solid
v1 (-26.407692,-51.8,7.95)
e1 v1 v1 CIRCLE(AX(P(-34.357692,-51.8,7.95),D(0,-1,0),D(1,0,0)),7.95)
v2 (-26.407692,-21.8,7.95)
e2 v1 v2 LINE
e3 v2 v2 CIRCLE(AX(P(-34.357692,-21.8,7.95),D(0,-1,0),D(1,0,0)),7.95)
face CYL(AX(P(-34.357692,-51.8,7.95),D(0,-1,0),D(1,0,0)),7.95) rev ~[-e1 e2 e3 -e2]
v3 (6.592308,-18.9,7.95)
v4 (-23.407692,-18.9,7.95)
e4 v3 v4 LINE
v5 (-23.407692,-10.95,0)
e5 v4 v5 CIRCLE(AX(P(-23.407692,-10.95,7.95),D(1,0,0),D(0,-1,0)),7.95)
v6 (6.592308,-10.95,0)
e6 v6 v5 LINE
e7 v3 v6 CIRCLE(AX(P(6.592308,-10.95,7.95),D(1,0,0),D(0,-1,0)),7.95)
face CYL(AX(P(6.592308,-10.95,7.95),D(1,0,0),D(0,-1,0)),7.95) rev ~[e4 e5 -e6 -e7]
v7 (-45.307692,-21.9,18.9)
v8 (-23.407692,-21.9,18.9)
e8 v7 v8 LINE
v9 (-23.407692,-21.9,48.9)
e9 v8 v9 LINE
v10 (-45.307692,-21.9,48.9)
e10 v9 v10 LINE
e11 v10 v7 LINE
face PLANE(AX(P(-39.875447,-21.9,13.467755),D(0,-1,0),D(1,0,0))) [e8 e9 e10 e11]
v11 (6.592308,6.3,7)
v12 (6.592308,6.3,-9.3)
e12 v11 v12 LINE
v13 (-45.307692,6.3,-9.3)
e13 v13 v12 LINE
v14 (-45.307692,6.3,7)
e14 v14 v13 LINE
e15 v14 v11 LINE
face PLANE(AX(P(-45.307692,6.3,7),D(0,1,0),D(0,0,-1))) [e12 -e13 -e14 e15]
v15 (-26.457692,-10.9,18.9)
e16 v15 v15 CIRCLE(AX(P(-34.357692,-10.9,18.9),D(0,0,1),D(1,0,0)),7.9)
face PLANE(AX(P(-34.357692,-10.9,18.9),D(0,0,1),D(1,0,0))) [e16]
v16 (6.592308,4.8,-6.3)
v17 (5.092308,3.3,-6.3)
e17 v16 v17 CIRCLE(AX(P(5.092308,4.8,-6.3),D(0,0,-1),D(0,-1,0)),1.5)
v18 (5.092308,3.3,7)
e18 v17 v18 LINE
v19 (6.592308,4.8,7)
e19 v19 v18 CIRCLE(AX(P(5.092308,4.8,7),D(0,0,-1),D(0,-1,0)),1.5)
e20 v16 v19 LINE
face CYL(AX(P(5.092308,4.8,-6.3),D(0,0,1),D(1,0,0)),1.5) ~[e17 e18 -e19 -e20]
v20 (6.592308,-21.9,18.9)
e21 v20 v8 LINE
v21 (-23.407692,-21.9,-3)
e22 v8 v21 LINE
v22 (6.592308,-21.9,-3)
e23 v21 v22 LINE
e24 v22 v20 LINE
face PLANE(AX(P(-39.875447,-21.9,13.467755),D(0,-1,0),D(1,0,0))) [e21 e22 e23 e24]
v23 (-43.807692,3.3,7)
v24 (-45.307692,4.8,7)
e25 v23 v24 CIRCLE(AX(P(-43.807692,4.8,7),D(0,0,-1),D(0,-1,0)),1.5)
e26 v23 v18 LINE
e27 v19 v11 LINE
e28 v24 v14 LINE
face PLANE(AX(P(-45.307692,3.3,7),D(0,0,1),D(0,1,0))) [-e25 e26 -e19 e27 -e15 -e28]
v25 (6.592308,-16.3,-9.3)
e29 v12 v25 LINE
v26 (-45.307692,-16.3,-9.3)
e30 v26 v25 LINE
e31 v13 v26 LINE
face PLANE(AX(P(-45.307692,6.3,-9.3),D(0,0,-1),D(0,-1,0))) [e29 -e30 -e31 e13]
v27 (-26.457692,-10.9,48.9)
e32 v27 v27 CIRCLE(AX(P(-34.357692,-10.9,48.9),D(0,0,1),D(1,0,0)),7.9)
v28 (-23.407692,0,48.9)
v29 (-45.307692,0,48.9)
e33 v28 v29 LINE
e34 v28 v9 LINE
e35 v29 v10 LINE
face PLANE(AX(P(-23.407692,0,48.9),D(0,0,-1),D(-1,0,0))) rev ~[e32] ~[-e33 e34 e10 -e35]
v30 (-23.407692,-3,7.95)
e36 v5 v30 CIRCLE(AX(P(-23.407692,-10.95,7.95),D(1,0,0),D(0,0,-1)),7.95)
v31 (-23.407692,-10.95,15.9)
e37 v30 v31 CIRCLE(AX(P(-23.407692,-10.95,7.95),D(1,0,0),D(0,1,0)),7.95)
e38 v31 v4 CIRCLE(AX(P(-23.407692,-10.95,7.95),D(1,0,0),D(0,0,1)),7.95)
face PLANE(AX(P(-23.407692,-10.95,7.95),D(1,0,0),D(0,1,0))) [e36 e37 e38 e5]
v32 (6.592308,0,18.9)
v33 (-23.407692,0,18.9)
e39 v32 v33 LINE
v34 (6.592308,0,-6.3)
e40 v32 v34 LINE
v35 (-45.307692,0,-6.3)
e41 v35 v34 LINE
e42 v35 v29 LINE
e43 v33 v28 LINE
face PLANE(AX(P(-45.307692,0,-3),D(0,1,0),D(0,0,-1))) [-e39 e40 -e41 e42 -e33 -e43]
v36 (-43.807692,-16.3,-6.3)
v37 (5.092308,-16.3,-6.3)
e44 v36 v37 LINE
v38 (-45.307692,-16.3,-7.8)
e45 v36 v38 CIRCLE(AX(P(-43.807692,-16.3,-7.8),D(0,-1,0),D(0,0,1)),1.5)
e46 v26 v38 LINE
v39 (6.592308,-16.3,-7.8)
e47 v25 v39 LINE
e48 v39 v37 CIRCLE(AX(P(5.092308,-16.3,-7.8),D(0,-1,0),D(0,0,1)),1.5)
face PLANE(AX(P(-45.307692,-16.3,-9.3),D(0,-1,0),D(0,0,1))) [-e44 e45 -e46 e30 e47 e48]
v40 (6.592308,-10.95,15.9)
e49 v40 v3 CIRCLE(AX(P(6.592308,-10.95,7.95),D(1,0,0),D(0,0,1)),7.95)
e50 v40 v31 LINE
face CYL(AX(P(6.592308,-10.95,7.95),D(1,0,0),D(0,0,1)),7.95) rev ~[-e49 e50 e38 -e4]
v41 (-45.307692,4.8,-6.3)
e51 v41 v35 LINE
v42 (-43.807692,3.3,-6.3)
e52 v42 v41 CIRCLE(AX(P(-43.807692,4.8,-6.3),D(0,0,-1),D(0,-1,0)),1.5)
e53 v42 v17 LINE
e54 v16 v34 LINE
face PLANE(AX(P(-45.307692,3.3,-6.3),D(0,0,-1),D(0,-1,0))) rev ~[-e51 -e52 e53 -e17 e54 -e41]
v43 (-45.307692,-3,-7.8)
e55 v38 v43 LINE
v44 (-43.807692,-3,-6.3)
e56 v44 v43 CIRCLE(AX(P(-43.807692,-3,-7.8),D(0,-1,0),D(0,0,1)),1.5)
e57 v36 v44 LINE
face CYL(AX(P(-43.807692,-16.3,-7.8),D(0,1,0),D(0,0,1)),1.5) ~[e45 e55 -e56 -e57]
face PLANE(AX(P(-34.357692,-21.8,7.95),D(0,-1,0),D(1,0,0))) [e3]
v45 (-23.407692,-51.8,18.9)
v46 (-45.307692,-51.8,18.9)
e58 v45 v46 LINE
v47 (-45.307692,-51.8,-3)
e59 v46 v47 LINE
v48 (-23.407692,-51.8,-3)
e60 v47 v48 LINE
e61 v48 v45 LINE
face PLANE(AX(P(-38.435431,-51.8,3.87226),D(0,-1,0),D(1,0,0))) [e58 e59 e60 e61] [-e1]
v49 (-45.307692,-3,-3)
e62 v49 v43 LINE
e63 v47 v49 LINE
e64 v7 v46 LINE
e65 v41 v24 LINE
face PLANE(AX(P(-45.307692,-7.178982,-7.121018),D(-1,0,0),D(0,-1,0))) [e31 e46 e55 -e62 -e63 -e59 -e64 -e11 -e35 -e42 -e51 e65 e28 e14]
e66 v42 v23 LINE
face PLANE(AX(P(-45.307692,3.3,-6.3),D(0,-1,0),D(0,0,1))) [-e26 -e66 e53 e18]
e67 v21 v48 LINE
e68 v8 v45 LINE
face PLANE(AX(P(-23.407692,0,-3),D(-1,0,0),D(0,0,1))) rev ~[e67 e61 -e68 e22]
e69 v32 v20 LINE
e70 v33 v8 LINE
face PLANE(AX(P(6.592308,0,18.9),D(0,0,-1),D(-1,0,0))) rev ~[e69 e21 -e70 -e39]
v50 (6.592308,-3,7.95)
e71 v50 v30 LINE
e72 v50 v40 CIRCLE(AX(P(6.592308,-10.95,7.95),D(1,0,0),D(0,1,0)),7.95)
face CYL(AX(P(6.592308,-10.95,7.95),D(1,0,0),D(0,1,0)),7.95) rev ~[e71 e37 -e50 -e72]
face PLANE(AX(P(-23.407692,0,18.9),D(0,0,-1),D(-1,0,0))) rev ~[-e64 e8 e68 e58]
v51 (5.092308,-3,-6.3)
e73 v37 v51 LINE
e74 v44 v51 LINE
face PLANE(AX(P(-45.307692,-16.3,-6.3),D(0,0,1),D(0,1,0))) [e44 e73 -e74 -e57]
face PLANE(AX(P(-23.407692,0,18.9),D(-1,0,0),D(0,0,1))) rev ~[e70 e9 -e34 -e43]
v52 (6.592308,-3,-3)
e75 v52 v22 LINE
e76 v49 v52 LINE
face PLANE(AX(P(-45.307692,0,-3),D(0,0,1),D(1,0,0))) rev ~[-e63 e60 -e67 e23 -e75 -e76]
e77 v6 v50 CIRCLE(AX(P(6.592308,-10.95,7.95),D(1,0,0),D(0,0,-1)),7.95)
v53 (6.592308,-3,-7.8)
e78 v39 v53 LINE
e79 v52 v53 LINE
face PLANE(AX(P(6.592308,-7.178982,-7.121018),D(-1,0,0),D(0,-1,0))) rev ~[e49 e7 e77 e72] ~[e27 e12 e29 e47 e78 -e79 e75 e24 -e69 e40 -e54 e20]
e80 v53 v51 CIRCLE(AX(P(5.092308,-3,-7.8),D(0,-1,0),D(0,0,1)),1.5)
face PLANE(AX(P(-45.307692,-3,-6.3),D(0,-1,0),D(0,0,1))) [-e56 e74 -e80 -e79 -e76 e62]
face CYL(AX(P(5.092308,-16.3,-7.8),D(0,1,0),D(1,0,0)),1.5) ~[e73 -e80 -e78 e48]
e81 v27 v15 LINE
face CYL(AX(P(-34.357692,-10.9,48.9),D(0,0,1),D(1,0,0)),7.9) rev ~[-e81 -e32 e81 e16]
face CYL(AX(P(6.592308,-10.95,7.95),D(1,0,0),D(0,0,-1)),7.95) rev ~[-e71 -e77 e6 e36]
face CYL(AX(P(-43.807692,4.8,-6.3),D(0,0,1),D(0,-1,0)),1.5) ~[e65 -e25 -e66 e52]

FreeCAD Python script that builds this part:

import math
import FreeCAD as App
import Part
import Sketcher
Q = App.Units.Quantity


def edges_at(feature, points):
    """Names of the edges that pass closest to the given points."""
    edges = feature.Shape.Edges
    near = lambda p: min(range(len(edges)), key=lambda i: edges[i].distToShape(Part.Vertex(*p))[0])
    return sorted({f"Edge{near(p) + 1}" for p in points})


def add_polygon(sketch, points):
    """Adds a closed chain of lines whose ends are joined by coincident constraints."""
    first, n = sketch.GeometryCount, len(points)
    for a, b in zip(points, points[1:] + points[:1]):
        sketch.addGeometry(Part.LineSegment(App.Vector(*a, 0), App.Vector(*b, 0)), False)
    for i in range(n):
        sketch.addConstraint(Sketcher.Constraint("Coincident", first + i, 2, first + (i + 1) % n, 1))

doc = App.newDocument("Part")
body = doc.addObject("PartDesign::Body", "Body")

# Sketch on XZ plane
sketch1 = doc.addObject("Sketcher::SketchObject", "Sketch")
body.addObject(sketch1)
sketch1.AttachmentSupport = (doc.XZ_Plane, [""])
sketch1.MapMode = "FlatFace"
add_polygon(sketch1, [(7, 19), (-23, 19), (-23, 49), (-45, 49), (-45, -3), (7, -3)])  # lines 0-5
sketch1.addConstraint(Sketcher.Constraint("Horizontal", 0))
sketch1.addConstraint(Sketcher.Constraint("Vertical", 1))
sketch1.addConstraint(Sketcher.Constraint("Horizontal", 2))
sketch1.addConstraint(Sketcher.Constraint("Vertical", 3))
sketch1.addConstraint(Sketcher.Constraint("Horizontal", 4))
sketch1.addConstraint(Sketcher.Constraint("Vertical", 5))
sketch1.addConstraint(Sketcher.Constraint("Equal", 0, 1))
sketch1.addConstraint(Sketcher.Constraint("Equal", 4, 3))
sketch1.addConstraint(Sketcher.Constraint("DistanceX", 0, 2, 0, 1, Q("30 mm")))
sketch1.addConstraint(Sketcher.Constraint("DistanceX", 2, 2, 2, 1, Q("21.9 mm")))
sketch1.addConstraint(Sketcher.Constraint("DistanceY", 3, 2, -1, 1, Q("3 mm")))
sketch1.addConstraint(Sketcher.Constraint("DistanceX", 0, 2, -1, 1, Q("23.407692 mm")))
pad1 = doc.addObject("PartDesign::Pad", "Pad")
body.addObject(pad1)
pad1.Profile = sketch1
pad1.Length = 21.9

# Sketch on XZ plane
sketch2 = doc.addObject("Sketcher::SketchObject", "Sketch001")
body.addObject(sketch2)
sketch2.AttachmentSupport = (doc.XZ_Plane, [""])
sketch2.MapMode = "FlatFace"
add_polygon(sketch2, [(-23, -3), (-23, 19), (-45, 19), (-45, -3)])  # lines 0-3
sketch2.addConstraint(Sketcher.Constraint("Vertical", 0))
sketch2.addConstraint(Sketcher.Constraint("Horizontal", 1))
sketch2.addConstraint(Sketcher.Constraint("Vertical", 2))
sketch2.addConstraint(Sketcher.Constraint("Horizontal", 3))
sketch2.addConstraint(Sketcher.Constraint("Equal", 3, 0))
sketch2.addConstraint(Sketcher.Constraint("DistanceX", 1, 2, 1, 1, Q("21.9 mm")))
sketch2.addConstraint(Sketcher.Constraint("DistanceY", 2, 2, -1, 1, Q("3 mm")))
sketch2.addConstraint(Sketcher.Constraint("DistanceX", 0, 2, -1, 1, Q("23.407692 mm")))
pad2 = doc.addObject("PartDesign::Pad", "Pad001")
body.addObject(pad2)
pad2.Profile = sketch2
pad2.Length = 51.8

# Sketch on XZ plane
sketch3 = doc.addObject("Sketcher::SketchObject", "Sketch002")
body.addObject(sketch3)
sketch3.AttachmentSupport = (doc.XZ_Plane, [""])
sketch3.MapMode = "FlatFace"
sketch3.AttachmentOffset = App.Placement(App.Vector(0, 0, 51.8), App.Rotation())
sketch3.addGeometry(Part.Circle(App.Vector(-34, 8, 0), App.Vector(0, 0, 1), 8), False)
sketch3.addConstraint(Sketcher.Constraint("Diameter", 0, Q("15.9 mm")))
sketch3.addConstraint(Sketcher.Constraint("DistanceY", -1, 1, 0, 3, Q("7.95 mm")))
sketch3.addConstraint(Sketcher.Constraint("DistanceX", 0, 3, -1, 1, Q("34.357692 mm")))
pocket1 = doc.addObject("PartDesign::Pocket", "Pocket")
body.addObject(pocket1)
pocket1.Profile = sketch3
pocket1.Length = 30

# Sketch on YZ plane
sketch4 = doc.addObject("Sketcher::SketchObject", "Sketch003")
body.addObject(sketch4)
sketch4.AttachmentSupport = (doc.YZ_Plane, [""])
sketch4.MapMode = "FlatFace"
sketch4.AttachmentOffset = App.Placement(App.Vector(0, 0, 6.592308), App.Rotation())
sketch4.addGeometry(Part.ArcOfCircle(Part.Circle(App.Vector(-11, 8, 0), App.Vector(0, 0, 1), 8), math.radians(0), math.radians(90)), False)
sketch4.addGeometry(Part.ArcOfCircle(Part.Circle(App.Vector(-11, 8, 0), App.Vector(0, 0, 1), 8), math.radians(90), math.radians(180)), False)
sketch4.addGeometry(Part.ArcOfCircle(Part.Circle(App.Vector(-11, 8, 0), App.Vector(0, 0, 1), 8), math.radians(180), math.radians(270)), False)
sketch4.addGeometry(Part.ArcOfCircle(Part.Circle(App.Vector(-11, 8, 0), App.Vector(0, 0, 1), 8), math.radians(-90), math.radians(0)), False)
sketch4.addConstraint(Sketcher.Constraint("Tangent", 0, 2, 1, 1))
sketch4.addConstraint(Sketcher.Constraint("Tangent", 1, 2, 2, 1))
sketch4.addConstraint(Sketcher.Constraint("Tangent", 2, 2, 3, 1))
sketch4.addConstraint(Sketcher.Constraint("Tangent", 3, 2, 0, 1))
sketch4.addConstraint(Sketcher.Constraint("Equal", 0, 1))
sketch4.addConstraint(Sketcher.Constraint("PointOnObject", 2, 2, -1))
sketch4.addConstraint(Sketcher.Constraint("Horizontal", 3, 3, 1, 2))
sketch4.addConstraint(Sketcher.Constraint("Horizontal", 1, 2, 3, 2))
sketch4.addConstraint(Sketcher.Constraint("Vertical", 3, 3, 0, 2))
sketch4.addConstraint(Sketcher.Constraint("Vertical", 0, 2, 2, 2))
sketch4.addConstraint(Sketcher.Constraint("Radius", 0, Q("7.95 mm")))
sketch4.addConstraint(Sketcher.Constraint("DistanceX", 3, 2, -1, 1, Q("3 mm")))
pocket2 = doc.addObject("PartDesign::Pocket", "Pocket001")
body.addObject(pocket2)
pocket2.Profile = sketch4
pocket2.Length = 30

# Sketch on XY plane
sketch5 = doc.addObject("Sketcher::SketchObject", "Sketch004")
body.addObject(sketch5)
sketch5.AttachmentSupport = (doc.XY_Plane, [""])
sketch5.MapMode = "FlatFace"
sketch5.AttachmentOffset = App.Placement(App.Vector(0, 0, 48.9), App.Rotation())
sketch5.addGeometry(Part.Circle(App.Vector(-34, -11, 0), App.Vector(0, 0, 1), 8), False)
sketch5.addConstraint(Sketcher.Constraint("Diameter", 0, Q("15.8 mm")))
sketch5.addConstraint(Sketcher.Constraint("DistanceY", 0, 3, -1, 1, Q("10.9 mm")))
sketch5.addConstraint(Sketcher.Constraint("DistanceX", 0, 3, -1, 1, Q("34.357692 mm")))
pocket3 = doc.addObject("PartDesign::Pocket", "Pocket002")
body.addObject(pocket3)
pocket3.Profile = sketch5
pocket3.Length = 30

# Sketch on YZ plane
sketch6 = doc.addObject("Sketcher::SketchObject", "Sketch005")
body.addObject(sketch6)
sketch6.AttachmentSupport = (doc.YZ_Plane, [""])
sketch6.MapMode = "FlatFace"
sketch6.AttachmentOffset = App.Placement(App.Vector(0, 0, -45.307692), App.Rotation())
add_polygon(sketch6, [(-3, -3), (0, -3), (0, -6.3), (3.3, -6.3), (3.3, 7), (6.3, 7), (6.3, -9.3), (-16.3, -9.3), (-16.3, -6.3), (-3, -6.3)])  # lines 0-9
sketch6.addConstraint(Sketcher.Constraint("Horizontal", 0))
sketch6.addConstraint(Sketcher.Constraint("Vertical", 1))
sketch6.addConstraint(Sketcher.Constraint("Horizontal", 2))
sketch6.addConstraint(Sketcher.Constraint("Vertical", 3))
sketch6.addConstraint(Sketcher.Constraint("Horizontal", 4))
sketch6.addConstraint(Sketcher.Constraint("Vertical", 5))
sketch6.addConstraint(Sketcher.Constraint("Horizontal", 6))
sketch6.addConstraint(Sketcher.Constraint("Vertical", 7))
sketch6.addConstraint(Sketcher.Constraint("Horizontal", 8))
sketch6.addConstraint(Sketcher.Constraint("Vertical", 9))
sketch6.addConstraint(Sketcher.Constraint("PointOnObject", 0, 2, -2))
sketch6.addConstraint(Sketcher.Constraint("Horizontal", 2, 2, 7, 2))
sketch6.addConstraint(Sketcher.Constraint("Equal", 0, 4))
sketch6.addConstraint(Sketcher.Constraint("Equal", 2, 1))
sketch6.addConstraint(Sketcher.Constraint("Equal", 8, 3))
sketch6.addConstraint(Sketcher.Constraint("Equal", 4, 7))
sketch6.addConstraint(Sketcher.Constraint("DistanceX", 0, 1, 0, 2, Q("3 mm")))
sketch6.addConstraint(Sketcher.Constraint("DistanceX", 2, 1, 2, 2, Q("3.3 mm")))
sketch6.addConstraint(Sketcher.Constraint("DistanceX", 6, 2, 6, 1, Q("22.6 mm")))
sketch6.addConstraint(Sketcher.Constraint("DistanceY", 0, 2, -1, 1, Q("3 mm")))
pad3 = doc.addObject("PartDesign::Pad", "Pad002")
body.addObject(pad3)
pad3.Profile = sketch6
pad3.Length = 51.9
doc.recompute()

fillet = doc.addObject("PartDesign::Fillet", "Fillet")
body.addObject(fillet)
fillet.Base = (pad3, edges_at(pad3, [
    (-45.308, -9.65, -6.3),
    (6.592, -9.65, -6.3),
    (-45.308, 3.3, 0.35),
    (6.592, 3.3, 0.35),
]))
fillet.Radius = 1.5

doc.recompute()
